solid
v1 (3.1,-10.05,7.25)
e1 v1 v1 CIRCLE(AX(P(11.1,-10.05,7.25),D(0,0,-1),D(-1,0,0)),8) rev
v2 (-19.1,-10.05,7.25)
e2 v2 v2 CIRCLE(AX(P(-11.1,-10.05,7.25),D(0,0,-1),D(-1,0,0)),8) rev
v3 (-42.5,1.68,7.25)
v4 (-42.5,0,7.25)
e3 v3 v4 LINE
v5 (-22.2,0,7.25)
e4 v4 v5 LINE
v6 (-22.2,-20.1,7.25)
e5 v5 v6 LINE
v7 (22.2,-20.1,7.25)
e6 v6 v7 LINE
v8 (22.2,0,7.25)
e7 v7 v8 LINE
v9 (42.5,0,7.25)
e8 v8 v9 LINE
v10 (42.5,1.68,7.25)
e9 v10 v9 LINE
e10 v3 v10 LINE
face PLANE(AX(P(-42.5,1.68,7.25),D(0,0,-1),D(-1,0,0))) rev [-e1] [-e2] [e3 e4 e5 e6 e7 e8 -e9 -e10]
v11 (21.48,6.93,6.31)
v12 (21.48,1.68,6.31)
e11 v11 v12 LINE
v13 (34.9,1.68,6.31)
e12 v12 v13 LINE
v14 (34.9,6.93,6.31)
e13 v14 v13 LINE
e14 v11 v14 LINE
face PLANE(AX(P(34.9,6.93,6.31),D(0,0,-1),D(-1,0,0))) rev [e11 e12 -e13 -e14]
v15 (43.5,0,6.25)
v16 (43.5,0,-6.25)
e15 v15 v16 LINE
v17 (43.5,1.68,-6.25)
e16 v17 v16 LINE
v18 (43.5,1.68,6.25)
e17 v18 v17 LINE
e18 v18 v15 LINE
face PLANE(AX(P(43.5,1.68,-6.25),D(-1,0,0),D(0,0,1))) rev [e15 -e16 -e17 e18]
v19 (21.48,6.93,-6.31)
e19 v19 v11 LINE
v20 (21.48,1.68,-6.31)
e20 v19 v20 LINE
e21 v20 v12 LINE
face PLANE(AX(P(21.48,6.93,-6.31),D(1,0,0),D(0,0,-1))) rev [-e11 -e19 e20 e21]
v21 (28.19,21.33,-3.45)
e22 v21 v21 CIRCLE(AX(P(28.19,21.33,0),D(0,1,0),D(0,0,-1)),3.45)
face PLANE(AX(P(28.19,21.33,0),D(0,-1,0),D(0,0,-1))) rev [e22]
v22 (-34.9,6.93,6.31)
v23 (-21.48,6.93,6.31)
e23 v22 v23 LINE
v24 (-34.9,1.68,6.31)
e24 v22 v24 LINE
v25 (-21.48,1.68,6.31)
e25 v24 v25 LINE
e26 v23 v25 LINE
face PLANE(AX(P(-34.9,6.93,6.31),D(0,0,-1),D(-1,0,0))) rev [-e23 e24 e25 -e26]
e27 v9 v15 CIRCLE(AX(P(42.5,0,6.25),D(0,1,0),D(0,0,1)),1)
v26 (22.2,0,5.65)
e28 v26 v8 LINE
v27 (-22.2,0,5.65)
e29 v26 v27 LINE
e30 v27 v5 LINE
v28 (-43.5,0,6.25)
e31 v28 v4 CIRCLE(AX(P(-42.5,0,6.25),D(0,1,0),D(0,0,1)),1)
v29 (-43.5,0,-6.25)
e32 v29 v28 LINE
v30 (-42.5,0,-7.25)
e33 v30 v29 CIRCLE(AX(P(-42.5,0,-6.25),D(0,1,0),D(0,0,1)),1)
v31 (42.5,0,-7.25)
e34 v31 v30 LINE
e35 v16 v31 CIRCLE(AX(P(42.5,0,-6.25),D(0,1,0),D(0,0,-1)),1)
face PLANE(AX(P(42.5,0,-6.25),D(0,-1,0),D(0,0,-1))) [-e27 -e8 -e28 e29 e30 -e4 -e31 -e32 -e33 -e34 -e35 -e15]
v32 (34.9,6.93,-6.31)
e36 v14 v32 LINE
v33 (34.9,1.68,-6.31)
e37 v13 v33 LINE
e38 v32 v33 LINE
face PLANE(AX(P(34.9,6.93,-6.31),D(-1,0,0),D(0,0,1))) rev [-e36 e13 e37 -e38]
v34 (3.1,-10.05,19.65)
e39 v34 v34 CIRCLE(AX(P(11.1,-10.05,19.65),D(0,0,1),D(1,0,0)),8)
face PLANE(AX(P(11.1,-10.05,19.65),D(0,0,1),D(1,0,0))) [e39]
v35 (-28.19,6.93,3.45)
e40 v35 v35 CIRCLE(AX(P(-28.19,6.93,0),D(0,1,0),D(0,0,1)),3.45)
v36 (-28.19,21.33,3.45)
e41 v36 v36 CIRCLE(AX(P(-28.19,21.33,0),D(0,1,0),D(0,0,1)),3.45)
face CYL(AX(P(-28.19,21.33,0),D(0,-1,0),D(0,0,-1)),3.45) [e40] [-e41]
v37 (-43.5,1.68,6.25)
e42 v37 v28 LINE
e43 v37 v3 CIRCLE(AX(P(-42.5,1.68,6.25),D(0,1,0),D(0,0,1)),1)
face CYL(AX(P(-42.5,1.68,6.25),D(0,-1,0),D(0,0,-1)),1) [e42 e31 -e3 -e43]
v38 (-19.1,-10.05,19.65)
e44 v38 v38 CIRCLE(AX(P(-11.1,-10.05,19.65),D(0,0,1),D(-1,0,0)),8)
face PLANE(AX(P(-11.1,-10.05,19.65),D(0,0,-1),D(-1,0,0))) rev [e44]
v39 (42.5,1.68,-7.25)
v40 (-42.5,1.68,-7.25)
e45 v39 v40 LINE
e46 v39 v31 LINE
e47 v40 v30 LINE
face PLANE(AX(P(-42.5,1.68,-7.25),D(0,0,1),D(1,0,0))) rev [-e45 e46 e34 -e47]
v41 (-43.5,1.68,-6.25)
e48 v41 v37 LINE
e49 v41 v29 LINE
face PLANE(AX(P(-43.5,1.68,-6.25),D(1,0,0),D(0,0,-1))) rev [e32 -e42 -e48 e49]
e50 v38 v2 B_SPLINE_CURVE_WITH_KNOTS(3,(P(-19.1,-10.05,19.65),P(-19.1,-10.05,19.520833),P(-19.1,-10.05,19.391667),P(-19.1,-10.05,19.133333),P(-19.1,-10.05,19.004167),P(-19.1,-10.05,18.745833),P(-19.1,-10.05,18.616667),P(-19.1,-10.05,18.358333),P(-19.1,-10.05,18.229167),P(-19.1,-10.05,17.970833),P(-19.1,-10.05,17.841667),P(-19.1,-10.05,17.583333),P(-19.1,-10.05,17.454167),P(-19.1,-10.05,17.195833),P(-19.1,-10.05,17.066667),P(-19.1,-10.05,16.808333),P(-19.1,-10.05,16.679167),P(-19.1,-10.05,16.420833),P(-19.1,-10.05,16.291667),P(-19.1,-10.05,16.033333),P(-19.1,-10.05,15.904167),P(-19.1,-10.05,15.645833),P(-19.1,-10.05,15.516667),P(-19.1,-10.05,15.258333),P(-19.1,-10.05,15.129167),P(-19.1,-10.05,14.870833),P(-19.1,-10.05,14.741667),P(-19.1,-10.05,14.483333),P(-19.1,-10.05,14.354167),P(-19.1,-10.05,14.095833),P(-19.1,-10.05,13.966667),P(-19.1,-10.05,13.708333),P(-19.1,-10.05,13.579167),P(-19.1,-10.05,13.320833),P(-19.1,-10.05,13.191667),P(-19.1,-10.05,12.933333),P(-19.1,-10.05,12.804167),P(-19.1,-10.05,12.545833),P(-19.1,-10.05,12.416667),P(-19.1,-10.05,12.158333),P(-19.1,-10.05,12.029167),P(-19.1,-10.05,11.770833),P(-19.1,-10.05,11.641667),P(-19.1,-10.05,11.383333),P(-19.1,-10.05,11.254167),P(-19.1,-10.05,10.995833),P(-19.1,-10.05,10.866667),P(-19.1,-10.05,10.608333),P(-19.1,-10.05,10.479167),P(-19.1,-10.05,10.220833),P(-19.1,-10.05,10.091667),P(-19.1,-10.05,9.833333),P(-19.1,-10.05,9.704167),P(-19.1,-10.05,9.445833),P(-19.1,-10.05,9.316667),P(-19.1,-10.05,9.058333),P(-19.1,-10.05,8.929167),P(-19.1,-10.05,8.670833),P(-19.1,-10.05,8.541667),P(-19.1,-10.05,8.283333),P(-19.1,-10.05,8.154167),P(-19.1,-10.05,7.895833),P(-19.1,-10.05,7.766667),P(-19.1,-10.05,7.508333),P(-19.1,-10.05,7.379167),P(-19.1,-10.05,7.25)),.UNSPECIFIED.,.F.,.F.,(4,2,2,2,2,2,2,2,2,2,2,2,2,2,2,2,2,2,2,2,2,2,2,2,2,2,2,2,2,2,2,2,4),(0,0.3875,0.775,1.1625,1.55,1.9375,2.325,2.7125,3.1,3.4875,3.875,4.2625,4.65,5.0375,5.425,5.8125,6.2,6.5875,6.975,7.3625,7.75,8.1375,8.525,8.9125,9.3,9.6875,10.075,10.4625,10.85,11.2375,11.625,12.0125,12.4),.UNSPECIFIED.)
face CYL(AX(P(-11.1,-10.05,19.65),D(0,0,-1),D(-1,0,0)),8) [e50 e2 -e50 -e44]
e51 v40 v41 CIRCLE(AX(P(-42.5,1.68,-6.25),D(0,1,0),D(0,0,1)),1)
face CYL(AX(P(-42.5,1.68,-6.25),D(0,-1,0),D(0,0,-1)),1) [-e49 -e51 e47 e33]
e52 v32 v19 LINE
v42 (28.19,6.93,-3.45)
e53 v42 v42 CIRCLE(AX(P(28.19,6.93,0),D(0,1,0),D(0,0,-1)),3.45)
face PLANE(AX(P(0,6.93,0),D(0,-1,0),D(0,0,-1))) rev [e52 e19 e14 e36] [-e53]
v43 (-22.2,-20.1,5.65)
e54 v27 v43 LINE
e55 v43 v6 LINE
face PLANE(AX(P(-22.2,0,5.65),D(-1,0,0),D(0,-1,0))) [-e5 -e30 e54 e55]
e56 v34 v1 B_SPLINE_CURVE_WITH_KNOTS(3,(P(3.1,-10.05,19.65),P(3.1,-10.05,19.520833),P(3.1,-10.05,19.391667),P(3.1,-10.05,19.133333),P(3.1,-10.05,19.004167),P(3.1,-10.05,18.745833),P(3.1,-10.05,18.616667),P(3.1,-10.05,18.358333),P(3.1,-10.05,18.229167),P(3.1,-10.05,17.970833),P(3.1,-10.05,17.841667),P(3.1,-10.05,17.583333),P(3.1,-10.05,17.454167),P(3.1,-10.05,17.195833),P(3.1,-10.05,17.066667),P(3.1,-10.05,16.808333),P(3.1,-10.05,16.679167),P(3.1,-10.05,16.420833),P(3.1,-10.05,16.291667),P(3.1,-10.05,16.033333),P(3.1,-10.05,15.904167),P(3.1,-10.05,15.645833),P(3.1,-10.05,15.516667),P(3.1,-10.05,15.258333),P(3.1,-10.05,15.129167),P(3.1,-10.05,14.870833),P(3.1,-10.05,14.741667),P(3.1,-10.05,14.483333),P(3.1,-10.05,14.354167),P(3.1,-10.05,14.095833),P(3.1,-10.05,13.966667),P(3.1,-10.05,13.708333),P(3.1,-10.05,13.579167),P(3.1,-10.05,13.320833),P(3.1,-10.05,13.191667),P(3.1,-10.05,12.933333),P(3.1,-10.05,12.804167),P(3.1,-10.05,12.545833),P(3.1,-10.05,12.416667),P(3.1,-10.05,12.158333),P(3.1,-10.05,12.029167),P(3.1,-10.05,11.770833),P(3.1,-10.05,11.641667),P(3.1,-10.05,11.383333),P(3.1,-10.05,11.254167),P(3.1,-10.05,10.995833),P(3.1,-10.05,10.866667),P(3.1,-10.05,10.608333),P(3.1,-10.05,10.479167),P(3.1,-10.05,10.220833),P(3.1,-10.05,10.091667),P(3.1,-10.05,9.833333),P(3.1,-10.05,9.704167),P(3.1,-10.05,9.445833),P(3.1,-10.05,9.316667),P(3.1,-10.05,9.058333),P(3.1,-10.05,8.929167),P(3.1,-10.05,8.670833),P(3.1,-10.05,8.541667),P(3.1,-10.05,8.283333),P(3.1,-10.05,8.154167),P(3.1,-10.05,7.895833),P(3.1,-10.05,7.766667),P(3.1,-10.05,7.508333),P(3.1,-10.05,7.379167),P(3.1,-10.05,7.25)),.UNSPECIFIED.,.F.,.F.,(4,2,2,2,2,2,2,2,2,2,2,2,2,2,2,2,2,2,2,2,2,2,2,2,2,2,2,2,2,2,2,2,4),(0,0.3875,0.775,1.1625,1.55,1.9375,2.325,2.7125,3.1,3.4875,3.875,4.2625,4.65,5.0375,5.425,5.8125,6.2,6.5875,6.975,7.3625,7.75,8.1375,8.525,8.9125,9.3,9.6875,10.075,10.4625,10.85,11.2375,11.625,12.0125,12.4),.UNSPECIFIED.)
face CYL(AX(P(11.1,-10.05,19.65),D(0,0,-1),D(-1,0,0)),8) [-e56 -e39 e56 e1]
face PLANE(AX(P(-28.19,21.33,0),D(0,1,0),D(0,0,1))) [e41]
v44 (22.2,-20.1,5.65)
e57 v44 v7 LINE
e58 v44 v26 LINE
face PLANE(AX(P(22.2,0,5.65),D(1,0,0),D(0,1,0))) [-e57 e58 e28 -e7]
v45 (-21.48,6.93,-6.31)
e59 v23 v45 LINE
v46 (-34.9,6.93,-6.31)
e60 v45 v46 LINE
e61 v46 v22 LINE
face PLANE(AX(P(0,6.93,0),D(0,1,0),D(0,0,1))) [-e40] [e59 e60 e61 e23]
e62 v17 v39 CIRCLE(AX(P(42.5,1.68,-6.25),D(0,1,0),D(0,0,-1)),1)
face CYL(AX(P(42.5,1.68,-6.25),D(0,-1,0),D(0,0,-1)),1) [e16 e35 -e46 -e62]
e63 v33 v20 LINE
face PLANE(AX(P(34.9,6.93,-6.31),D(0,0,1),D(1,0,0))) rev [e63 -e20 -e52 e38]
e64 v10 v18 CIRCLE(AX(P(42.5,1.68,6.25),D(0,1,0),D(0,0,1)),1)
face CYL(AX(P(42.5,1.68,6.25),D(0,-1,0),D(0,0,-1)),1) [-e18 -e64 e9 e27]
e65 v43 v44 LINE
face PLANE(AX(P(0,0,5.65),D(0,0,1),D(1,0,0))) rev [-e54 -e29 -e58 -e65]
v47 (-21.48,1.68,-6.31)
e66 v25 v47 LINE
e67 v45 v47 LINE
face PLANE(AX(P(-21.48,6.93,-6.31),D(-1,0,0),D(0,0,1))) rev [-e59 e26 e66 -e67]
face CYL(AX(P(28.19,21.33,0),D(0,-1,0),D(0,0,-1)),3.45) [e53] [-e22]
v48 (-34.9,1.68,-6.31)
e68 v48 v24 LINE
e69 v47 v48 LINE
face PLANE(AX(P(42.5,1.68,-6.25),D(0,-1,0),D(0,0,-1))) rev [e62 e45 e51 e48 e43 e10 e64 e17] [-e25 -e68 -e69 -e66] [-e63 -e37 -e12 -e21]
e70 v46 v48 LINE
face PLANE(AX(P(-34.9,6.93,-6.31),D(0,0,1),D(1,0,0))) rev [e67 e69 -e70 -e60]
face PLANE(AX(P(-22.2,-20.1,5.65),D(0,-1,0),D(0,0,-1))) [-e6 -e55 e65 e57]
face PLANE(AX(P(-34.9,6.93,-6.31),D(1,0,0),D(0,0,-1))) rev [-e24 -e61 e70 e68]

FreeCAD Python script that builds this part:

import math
import FreeCAD as App
import Part
import Sketcher

V = App.Vector

doc = App.newDocument("Part")
body = doc.addObject("PartDesign::Body", "Body")

# Sketch on XZ plane
sketch1 = body.newObject("Sketcher::SketchObject", "Sketch")
sketch1.AttachmentSupport = (doc.getObject("XZ_Plane"), [""])
sketch1.MapMode = "FlatFace"
sketch1.addGeometry([
    Part.LineSegment(V(42.5, -7.2, 0), V(-42.5, -7.2, 0)),  # 0
    Part.ArcOfCircle(Part.Circle(V(-42.5, -6.2, 0), V(0, 0, 1), 1), math.radians(-180), math.radians(-90)),  # 1
    Part.LineSegment(V(-43.5, -6.2, 0), V(-43.5, 6.2, 0)),  # 2
    Part.ArcOfCircle(Part.Circle(V(-42.5, 6.2, 0), V(0, 0, 1), 1), math.radians(90), math.radians(180)),  # 3
    Part.LineSegment(V(-42.5, 7.2, 0), V(42.5, 7.2, 0)),  # 4
    Part.ArcOfCircle(Part.Circle(V(42.5, 6.2, 0), V(0, 0, 1), 1), math.radians(0), math.radians(90)),  # 5
    Part.LineSegment(V(43.5, 6.2, 0), V(43.5, -6.2, 0)),  # 6
    Part.ArcOfCircle(Part.Circle(V(42.5, -6.2, 0), V(0, 0, 1), 1), math.radians(-90), math.radians(0)),  # 7
], False)
sketch1.addConstraint([
    Sketcher.Constraint("Tangent", 0, 2, 1, 2),
    Sketcher.Constraint("Tangent", 1, 1, 2, 1),
    Sketcher.Constraint("Tangent", 2, 2, 3, 2),
    Sketcher.Constraint("Tangent", 3, 1, 4, 1),
    Sketcher.Constraint("Tangent", 4, 2, 5, 2),
    Sketcher.Constraint("Tangent", 5, 1, 6, 1),
    Sketcher.Constraint("Tangent", 6, 2, 7, 2),
    Sketcher.Constraint("Tangent", 7, 1, 0, 1),
    Sketcher.Constraint("Horizontal", 0),
    Sketcher.Constraint("Vertical", 2),
    Sketcher.Constraint("Horizontal", 4),
    Sketcher.Constraint("Vertical", 6),
    Sketcher.Constraint("Equal", 1, 3),
    Sketcher.Constraint("Equal", 3, 5),
    Sketcher.Constraint("Equal", 5, 7),
    Sketcher.Constraint("Symmetric", 1, 3, 5, 3, -1, 1),
    Sketcher.Constraint("Radius", 1, 1.0),
    Sketcher.Constraint("DistanceX", 0, 2, 0, 1, 85.0),
    Sketcher.Constraint("DistanceY", 2, 1, 2, 2, 12.5),
])
pad1 = body.newObject("PartDesign::Pad", "Pad")
pad1.Profile = sketch1
pad1.Length = 1.68
pad1.Reversed = True

# Sketch on XZ plane
sketch2 = body.newObject("Sketcher::SketchObject", "Sketch001")
sketch2.AttachmentSupport = (doc.getObject("XZ_Plane"), [""])
sketch2.MapMode = "FlatFace"
sketch2.AttachmentOffset = App.Placement(V(0, 0, -1.68), App.Rotation())
sketch2.addGeometry([
    Part.LineSegment(V(21, -6, 0), V(21, 6, 0)),  # 0
    Part.LineSegment(V(21, 6, 0), V(35, 6, 0)),  # 1
    Part.LineSegment(V(35, 6, 0), V(35, -6, 0)),  # 2
    Part.LineSegment(V(35, -6, 0), V(21, -6, 0)),  # 3
    Part.LineSegment(V(-35, -6, 0), V(-35, 6, 0)),  # 4
    Part.LineSegment(V(-35, 6, 0), V(-21, 6, 0)),  # 5
    Part.LineSegment(V(-21, 6, 0), V(-21, -6, 0)),  # 6
    Part.LineSegment(V(-21, -6, 0), V(-35, -6, 0)),  # 7
], False)
sketch2.addConstraint([
    Sketcher.Constraint("Coincident", 0, 2, 1, 1),
    Sketcher.Constraint("Coincident", 1, 2, 2, 1),
    Sketcher.Constraint("Coincident", 2, 2, 3, 1),
    Sketcher.Constraint("Coincident", 3, 2, 0, 1),
    Sketcher.Constraint("Coincident", 4, 2, 5, 1),
    Sketcher.Constraint("Coincident", 5, 2, 6, 1),
    Sketcher.Constraint("Coincident", 6, 2, 7, 1),
    Sketcher.Constraint("Coincident", 7, 2, 4, 1),
    Sketcher.Constraint("Vertical", 0),
    Sketcher.Constraint("Horizontal", 1),
    Sketcher.Constraint("Vertical", 2),
    Sketcher.Constraint("Horizontal", 3),
    Sketcher.Constraint("Vertical", 4),
    Sketcher.Constraint("Horizontal", 5),
    Sketcher.Constraint("Vertical", 6),
    Sketcher.Constraint("Horizontal", 7),
    Sketcher.Constraint("Symmetric", 2, 2, 4, 2, -1, 1),
    Sketcher.Constraint("Symmetric", 0, 2, 6, 2, -1, 1),
    Sketcher.Constraint("Horizontal", 1, 2, 4, 2),
    Sketcher.Constraint("DistanceX", 1, 1, 1, 2, 13.42),
    Sketcher.Constraint("DistanceY", 0, 1, 0, 2, 12.62),
    Sketcher.Constraint("DistanceX", -1, 1, 1, 2, 34.9),
])
pad2 = body.newObject("PartDesign::Pad", "Pad001")
pad2.Profile = sketch2
pad2.Length = 5.25
pad2.Reversed = True

# Sketch on XZ plane
sketch3 = body.newObject("Sketcher::SketchObject", "Sketch002")
sketch3.AttachmentSupport = (doc.getObject("XZ_Plane"), [""])
sketch3.MapMode = "FlatFace"
sketch3.AttachmentOffset = App.Placement(V(0, 0, -6.93), App.Rotation())
sketch3.addGeometry([
    Part.Circle(V(-28.2, 0, 0), V(0, 0, 1), 3.5),
    Part.Circle(V(28.2, 0, 0), V(0, 0, 1), 3.5),
], False)
sketch3.addConstraint([
    Sketcher.Constraint("Equal", 0, 1),
    Sketcher.Constraint("Symmetric", 0, 3, 1, 3, -1, 1),
    Sketcher.Constraint("PointOnObject", 0, 3, -1),
    Sketcher.Constraint("Diameter", 0, 6.9),
    Sketcher.Constraint("DistanceX", 0, 3, -1, 1, 28.19),
])
pad3 = body.newObject("PartDesign::Pad", "Pad002")
pad3.Profile = sketch3
pad3.Length = 14.4
pad3.Reversed = True

# Sketch on XY plane
sketch4 = body.newObject("Sketcher::SketchObject", "Sketch003")
sketch4.AttachmentSupport = (doc.getObject("XY_Plane"), [""])
sketch4.MapMode = "FlatFace"
sketch4.AttachmentOffset = App.Placement(V(0, 0, 7.25), App.Rotation())
sketch4.addGeometry([
    Part.LineSegment(V(-22, 0, 0), V(-22, -20, 0)),
    Part.LineSegment(V(-22, -20, 0), V(22, -20, 0)),
    Part.LineSegment(V(22, -20, 0), V(22, 0, 0)),
    Part.LineSegment(V(22, 0, 0), V(-22, 0, 0)),
], False)
sketch4.addConstraint([
    Sketcher.Constraint("Coincident", 0, 2, 1, 1),
    Sketcher.Constraint("Coincident", 1, 2, 2, 1),
    Sketcher.Constraint("Coincident", 2, 2, 3, 1),
    Sketcher.Constraint("Coincident", 3, 2, 0, 1),
    Sketcher.Constraint("Vertical", 0),
    Sketcher.Constraint("Horizontal", 1),
    Sketcher.Constraint("Vertical", 2),
    Sketcher.Constraint("Horizontal", 3),
    Sketcher.Constraint("Symmetric", 2, 2, 3, 2, -1, 1),
    Sketcher.Constraint("DistanceX", 1, 1, 1, 2, 44.4),
    Sketcher.Constraint("DistanceY", 0, 2, 0, 1, 20.1),
])
pad4 = body.newObject("PartDesign::Pad", "Pad003")
pad4.Profile = sketch4
pad4.Length = 1.6
pad4.Reversed = True

# Sketch on XY plane
sketch5 = body.newObject("Sketcher::SketchObject", "Sketch004")
sketch5.AttachmentSupport = (doc.getObject("XY_Plane"), [""])
sketch5.MapMode = "FlatFace"
sketch5.AttachmentOffset = App.Placement(V(0, 0, 7.25), App.Rotation())
sketch5.addGeometry([
    Part.Circle(V(11, -10, 0), V(0, 0, 1), 8),
    Part.Circle(V(-11, -10, 0), V(0, 0, 1), 8),
], False)
sketch5.addConstraint([
    Sketcher.Constraint("Equal", 0, 1),
    Sketcher.Constraint("Symmetric", 0, 3, 1, 3, -2),
    Sketcher.Constraint("Diameter", 0, 16.0),
    Sketcher.Constraint("DistanceX", -1, 1, 0, 3, 11.1),
    Sketcher.Constraint("DistanceY", 0, 3, -1, 1, 10.05),
])
pad5 = body.newObject("PartDesign::Pad", "Pad004")
pad5.Profile = sketch5
pad5.Length = 12.4

doc.recompute()
